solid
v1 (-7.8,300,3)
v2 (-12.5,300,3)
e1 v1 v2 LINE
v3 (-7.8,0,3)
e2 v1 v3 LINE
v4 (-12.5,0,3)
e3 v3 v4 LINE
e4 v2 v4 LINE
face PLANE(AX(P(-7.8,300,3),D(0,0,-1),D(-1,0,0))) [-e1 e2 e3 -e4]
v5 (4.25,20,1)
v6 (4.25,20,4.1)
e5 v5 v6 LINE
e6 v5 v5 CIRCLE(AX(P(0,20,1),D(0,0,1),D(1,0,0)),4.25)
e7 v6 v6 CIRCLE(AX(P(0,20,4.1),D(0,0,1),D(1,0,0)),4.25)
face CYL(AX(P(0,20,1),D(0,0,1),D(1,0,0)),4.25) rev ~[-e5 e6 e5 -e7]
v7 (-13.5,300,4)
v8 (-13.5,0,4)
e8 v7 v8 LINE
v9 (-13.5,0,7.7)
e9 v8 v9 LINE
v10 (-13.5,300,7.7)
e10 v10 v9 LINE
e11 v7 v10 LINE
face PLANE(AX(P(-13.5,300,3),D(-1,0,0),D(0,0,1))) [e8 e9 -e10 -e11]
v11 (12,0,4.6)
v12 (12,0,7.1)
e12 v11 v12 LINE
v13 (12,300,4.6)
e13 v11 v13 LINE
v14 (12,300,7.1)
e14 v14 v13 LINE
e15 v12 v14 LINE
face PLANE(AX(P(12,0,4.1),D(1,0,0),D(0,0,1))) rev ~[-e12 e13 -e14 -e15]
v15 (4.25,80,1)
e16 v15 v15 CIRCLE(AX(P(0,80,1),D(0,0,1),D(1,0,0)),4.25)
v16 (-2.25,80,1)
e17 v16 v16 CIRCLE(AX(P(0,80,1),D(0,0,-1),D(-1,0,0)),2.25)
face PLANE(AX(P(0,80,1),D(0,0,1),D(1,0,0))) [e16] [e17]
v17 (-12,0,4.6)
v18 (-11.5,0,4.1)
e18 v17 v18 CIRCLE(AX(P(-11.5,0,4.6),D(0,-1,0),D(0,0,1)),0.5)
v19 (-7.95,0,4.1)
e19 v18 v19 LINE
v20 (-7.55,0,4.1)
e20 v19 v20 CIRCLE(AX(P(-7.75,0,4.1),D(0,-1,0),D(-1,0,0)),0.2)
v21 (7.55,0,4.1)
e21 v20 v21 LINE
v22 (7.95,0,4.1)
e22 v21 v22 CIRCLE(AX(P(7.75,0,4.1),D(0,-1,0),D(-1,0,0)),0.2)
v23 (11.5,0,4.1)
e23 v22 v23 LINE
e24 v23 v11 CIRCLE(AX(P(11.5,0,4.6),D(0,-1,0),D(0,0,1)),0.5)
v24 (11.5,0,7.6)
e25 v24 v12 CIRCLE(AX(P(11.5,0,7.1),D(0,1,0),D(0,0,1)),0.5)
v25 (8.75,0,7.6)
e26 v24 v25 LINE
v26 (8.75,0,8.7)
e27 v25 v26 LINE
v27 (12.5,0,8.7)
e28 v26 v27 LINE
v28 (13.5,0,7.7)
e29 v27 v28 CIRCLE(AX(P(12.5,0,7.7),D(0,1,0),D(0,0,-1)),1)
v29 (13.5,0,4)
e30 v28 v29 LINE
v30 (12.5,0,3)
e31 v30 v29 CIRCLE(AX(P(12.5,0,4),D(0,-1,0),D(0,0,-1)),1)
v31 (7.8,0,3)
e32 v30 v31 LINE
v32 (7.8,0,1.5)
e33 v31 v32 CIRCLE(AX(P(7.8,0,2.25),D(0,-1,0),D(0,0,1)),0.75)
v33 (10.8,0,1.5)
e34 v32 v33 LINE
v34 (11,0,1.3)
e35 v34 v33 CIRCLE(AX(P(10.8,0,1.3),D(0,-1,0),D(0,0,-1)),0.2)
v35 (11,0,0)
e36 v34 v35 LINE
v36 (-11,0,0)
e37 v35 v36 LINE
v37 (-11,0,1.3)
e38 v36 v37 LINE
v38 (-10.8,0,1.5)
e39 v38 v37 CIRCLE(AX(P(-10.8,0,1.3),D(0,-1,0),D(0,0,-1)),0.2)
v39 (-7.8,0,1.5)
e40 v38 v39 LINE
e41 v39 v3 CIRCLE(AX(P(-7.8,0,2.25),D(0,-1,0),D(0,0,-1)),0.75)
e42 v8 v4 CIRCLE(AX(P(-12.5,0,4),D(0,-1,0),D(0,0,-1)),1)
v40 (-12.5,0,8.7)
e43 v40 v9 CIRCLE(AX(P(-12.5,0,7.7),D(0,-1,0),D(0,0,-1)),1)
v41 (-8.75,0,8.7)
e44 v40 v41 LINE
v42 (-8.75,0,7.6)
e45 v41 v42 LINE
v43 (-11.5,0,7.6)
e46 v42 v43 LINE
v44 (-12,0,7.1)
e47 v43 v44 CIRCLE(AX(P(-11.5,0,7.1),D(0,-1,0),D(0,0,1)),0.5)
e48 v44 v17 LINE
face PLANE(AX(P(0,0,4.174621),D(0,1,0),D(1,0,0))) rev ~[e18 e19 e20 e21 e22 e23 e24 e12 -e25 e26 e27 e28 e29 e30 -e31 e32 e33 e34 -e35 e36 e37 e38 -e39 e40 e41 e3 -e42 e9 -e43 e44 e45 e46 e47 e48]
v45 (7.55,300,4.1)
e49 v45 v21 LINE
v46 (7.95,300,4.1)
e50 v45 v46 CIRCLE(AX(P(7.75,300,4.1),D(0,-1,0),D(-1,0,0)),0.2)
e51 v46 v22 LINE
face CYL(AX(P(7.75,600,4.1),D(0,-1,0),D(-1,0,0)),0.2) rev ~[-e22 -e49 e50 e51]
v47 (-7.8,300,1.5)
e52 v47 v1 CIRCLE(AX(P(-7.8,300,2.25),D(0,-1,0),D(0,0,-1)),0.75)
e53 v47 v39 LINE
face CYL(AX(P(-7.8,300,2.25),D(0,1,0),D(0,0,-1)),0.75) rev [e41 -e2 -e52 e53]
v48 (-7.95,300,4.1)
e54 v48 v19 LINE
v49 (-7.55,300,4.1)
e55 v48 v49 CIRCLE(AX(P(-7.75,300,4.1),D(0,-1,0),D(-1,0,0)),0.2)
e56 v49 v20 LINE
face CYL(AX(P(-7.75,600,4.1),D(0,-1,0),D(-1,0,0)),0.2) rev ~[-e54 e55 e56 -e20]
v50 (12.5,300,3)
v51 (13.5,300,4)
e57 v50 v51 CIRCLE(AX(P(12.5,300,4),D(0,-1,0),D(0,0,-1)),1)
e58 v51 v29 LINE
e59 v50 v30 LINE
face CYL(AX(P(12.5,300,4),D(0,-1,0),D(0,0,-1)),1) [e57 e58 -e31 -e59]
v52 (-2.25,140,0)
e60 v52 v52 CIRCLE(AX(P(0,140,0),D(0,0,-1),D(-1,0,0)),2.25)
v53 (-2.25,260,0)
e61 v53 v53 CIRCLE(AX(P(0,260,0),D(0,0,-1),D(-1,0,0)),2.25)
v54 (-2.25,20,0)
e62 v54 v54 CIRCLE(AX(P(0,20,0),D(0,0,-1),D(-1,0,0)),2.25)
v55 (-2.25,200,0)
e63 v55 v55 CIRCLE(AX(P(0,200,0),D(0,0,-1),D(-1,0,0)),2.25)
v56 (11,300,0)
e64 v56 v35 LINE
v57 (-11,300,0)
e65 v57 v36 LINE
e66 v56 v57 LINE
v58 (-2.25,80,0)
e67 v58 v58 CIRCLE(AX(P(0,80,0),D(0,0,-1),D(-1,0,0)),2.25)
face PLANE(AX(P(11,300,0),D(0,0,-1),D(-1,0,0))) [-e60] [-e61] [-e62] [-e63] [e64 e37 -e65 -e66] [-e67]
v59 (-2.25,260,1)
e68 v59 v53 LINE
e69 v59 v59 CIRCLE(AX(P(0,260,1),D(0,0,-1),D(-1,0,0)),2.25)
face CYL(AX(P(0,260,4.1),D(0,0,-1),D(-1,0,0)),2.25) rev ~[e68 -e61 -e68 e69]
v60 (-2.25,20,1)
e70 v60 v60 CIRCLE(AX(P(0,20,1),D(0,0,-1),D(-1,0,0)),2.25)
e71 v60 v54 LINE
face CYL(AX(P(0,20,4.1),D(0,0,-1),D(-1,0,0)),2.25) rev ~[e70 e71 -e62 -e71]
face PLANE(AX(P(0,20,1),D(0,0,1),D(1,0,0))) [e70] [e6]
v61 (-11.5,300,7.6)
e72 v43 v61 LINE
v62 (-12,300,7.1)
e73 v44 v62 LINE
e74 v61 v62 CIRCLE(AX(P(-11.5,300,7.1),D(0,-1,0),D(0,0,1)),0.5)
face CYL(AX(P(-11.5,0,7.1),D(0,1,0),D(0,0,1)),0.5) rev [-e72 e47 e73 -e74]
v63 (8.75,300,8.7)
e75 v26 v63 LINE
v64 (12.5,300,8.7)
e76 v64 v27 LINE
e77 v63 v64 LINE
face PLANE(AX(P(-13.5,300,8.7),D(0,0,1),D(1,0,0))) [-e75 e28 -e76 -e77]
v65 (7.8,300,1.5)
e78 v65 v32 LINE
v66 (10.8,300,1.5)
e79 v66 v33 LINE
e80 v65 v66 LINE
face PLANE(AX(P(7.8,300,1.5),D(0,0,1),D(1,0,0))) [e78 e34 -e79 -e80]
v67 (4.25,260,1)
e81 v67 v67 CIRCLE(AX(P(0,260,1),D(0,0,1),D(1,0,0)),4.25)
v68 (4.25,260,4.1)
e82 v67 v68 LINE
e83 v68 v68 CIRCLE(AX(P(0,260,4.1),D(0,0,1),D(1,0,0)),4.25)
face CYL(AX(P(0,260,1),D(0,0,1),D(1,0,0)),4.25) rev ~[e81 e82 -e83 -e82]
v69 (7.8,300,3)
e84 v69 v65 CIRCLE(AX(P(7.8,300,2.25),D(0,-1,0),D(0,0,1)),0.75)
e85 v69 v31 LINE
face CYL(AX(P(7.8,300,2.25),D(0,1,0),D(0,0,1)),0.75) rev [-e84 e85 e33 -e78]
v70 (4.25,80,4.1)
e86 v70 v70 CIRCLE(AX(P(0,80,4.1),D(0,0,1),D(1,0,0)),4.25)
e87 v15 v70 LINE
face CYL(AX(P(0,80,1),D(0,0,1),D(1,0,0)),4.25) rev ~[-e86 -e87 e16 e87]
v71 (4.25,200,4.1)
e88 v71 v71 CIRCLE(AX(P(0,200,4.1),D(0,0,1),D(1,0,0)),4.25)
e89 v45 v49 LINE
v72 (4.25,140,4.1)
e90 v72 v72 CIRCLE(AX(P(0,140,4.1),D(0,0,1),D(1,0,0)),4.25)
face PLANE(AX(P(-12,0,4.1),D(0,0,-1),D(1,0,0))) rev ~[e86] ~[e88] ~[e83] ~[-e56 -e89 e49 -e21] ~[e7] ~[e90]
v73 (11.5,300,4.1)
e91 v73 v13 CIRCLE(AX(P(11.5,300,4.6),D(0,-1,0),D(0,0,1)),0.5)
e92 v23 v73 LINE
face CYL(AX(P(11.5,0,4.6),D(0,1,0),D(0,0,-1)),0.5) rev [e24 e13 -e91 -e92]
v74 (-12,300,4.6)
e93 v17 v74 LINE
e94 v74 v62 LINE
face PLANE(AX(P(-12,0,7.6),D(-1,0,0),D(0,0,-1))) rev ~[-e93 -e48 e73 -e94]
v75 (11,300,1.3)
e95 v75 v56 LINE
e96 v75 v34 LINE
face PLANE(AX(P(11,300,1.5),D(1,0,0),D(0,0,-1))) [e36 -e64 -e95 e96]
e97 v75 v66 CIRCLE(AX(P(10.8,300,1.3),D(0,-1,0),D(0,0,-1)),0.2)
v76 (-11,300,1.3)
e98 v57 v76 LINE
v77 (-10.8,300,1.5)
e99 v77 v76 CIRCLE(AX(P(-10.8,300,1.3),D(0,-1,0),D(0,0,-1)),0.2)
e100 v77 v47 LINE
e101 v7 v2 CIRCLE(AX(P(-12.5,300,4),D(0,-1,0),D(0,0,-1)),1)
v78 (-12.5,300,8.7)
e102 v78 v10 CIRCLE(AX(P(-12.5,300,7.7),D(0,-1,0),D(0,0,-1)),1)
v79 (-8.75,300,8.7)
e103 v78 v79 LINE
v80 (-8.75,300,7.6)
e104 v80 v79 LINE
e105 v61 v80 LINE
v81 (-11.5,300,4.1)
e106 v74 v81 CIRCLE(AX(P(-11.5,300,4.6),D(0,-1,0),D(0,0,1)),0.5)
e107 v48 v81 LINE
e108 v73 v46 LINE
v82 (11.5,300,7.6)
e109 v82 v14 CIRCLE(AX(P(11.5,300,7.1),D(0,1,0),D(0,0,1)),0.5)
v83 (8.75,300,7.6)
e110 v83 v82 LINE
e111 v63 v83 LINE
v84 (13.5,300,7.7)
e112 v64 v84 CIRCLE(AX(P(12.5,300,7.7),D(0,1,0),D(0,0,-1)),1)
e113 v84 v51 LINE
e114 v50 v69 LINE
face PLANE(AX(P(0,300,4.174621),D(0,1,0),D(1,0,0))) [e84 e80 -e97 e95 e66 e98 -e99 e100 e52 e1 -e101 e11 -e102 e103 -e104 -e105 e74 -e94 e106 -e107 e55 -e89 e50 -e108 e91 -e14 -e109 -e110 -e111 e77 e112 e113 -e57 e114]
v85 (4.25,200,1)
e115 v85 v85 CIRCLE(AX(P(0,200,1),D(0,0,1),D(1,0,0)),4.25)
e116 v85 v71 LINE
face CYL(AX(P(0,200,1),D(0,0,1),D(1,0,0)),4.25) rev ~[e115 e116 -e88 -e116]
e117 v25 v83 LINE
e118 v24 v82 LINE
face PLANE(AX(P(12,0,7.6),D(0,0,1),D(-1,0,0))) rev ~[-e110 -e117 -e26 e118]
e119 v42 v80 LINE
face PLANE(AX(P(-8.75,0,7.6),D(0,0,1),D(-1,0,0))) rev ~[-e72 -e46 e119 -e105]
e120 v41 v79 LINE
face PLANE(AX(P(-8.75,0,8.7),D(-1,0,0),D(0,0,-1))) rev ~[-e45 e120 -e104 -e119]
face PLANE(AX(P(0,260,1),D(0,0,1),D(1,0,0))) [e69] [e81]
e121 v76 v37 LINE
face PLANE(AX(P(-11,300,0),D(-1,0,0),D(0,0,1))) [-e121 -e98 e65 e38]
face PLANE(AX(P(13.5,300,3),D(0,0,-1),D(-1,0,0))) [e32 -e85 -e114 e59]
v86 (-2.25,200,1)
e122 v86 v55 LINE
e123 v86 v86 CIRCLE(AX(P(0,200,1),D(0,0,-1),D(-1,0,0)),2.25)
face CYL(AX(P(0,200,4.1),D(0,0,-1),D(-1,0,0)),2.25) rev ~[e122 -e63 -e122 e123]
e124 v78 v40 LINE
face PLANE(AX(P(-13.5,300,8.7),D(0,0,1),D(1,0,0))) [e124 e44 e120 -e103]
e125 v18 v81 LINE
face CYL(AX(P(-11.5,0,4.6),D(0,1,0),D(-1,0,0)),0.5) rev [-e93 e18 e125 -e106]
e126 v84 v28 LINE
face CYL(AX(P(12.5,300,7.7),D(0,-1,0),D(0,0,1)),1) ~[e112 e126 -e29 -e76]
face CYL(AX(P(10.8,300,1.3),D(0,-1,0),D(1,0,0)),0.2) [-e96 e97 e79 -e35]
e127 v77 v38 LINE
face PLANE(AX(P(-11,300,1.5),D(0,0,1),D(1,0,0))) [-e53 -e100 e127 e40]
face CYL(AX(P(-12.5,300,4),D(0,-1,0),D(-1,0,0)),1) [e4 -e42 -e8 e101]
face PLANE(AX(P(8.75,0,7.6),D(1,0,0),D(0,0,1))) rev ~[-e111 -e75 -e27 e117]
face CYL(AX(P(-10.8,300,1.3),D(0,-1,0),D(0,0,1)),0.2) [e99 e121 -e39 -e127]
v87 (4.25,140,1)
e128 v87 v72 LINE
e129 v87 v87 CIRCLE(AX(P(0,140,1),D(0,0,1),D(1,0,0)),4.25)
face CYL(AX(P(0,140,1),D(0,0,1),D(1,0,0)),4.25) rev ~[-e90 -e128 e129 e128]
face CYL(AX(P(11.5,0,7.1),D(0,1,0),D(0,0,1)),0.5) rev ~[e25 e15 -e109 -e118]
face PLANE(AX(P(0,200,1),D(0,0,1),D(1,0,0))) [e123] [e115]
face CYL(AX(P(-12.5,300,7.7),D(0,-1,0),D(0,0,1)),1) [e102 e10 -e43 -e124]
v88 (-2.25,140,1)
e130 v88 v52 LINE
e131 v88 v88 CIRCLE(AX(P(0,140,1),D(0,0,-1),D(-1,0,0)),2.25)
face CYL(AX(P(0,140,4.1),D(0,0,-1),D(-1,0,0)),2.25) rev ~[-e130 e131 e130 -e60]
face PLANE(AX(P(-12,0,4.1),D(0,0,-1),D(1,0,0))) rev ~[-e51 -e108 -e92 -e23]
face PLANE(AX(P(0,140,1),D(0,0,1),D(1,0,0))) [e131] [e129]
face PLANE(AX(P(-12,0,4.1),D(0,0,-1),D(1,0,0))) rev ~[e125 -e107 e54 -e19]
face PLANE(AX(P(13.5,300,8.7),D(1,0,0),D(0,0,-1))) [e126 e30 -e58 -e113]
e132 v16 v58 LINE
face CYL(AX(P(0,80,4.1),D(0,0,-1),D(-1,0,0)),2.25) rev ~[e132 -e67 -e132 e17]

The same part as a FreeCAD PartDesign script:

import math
import FreeCAD as App
import Part
import Sketcher
from FreeCAD import Vector


def edges_at(feature, points):
    """Names of the edges that pass closest to the given points."""
    edges = feature.Shape.Edges
    near = lambda p: min(range(len(edges)), key=lambda i: edges[i].distToShape(Part.Vertex(*p))[0])
    return sorted({f"Edge{near(p) + 1}" for p in points})


def add_polygon(sketch, points):
    """Adds a closed chain of lines whose ends are joined by coincident constraints."""
    first, n = sketch.GeometryCount, len(points)
    for a, b in zip(points, points[1:] + points[:1]):
        sketch.addGeometry(Part.LineSegment(App.Vector(*a, 0), App.Vector(*b, 0)), False)
    for i in range(n):
        sketch.addConstraint(Sketcher.Constraint("Coincident", first + i, 2, first + (i + 1) % n, 1))

doc = App.newDocument("Part")
params = doc.addObject("Spreadsheet::Sheet", "Params")
for row, (alias, value) in enumerate([
    ("sketch1_width", "27 mm"),
    ("sketch1_width2", "22 mm"),
    ("sketch1_radius", "0.75 mm"),
    ("sketch1_width3", "5.7 mm"),
    ("sketch1_height", "1.5 mm"),
    ("pad1_length", "300 mm"),
    ("sketch2_width", "24 mm"),
    ("sketch2_width2", "17.5 mm"),
    ("sketch2_height", "1.1 mm"),
    ("sketch2_height2", "3.5 mm"),
    ("sketch3_diameter", "0.4 mm"),
    ("hole_diameter", "0.4 mm"),
    ("hole_depth", "300 mm"),
    ("sketch4_diameter", "4.5 mm"),
    ("hole2_diameter", "4.5 mm"),
    ("hole2_depth", "4.1 mm"),
    ("hole2_cbore_diameter", "8.5 mm"),
    ("hole2_cbore_depth", "3.1 mm"),
    ("fillet_radius", "0.2 mm"),
    ("fillet2_radius", "0.5 mm"),
    ("fillet3_radius", "1 mm"),
], start=1):
    params.set(f"A{row}", alias)
    params.set(f"B{row}", "=" + value)
    params.setAlias(f"B{row}", alias)

body = doc.addObject("PartDesign::Body", "Body")

# Sketch on XZ plane
sketch1 = body.newObject("Sketcher::SketchObject", "Sketch")
sketch1.AttachmentSupport = (doc.getObject("XZ_Plane"), [""])
sketch1.MapMode = "FlatFace"
sketch1.AttachmentOffset = App.Placement(Vector(0, 0, -300), App.Rotation())
sketch1.addGeometry([
    Part.LineSegment(Vector(-13.5, 3, 0), Vector(-13.5, 8.7, 0)),  # 0
    Part.LineSegment(Vector(-13.5, 8.7, 0), Vector(13.5, 8.7, 0)),  # 1
    Part.LineSegment(Vector(13.5, 8.7, 0), Vector(13.5, 3, 0)),  # 2
    Part.LineSegment(Vector(13.5, 3, 0), Vector(7.8, 3, 0)),  # 3
    Part.ArcOfCircle(Part.Circle(Vector(7.8, 2.2, 0), Vector(0, 0, 1), 0.8), math.radians(90), math.radians(270)),  # 4
    Part.LineSegment(Vector(7.8, 1.5, 0), Vector(11, 1.5, 0)),  # 5
    Part.LineSegment(Vector(11, 1.5, 0), Vector(11, 0, 0)),  # 6
    Part.LineSegment(Vector(11, 0, 0), Vector(-11, 0, 0)),  # 7
    Part.LineSegment(Vector(-11, 0, 0), Vector(-11, 1.5, 0)),  # 8
    Part.LineSegment(Vector(-11, 1.5, 0), Vector(-7.8, 1.5, 0)),  # 9
    Part.ArcOfCircle(Part.Circle(Vector(-7.8, 2.2, 0), Vector(0, 0, 1), 0.8), math.radians(-90), math.radians(90)),  # 10
    Part.LineSegment(Vector(-7.8, 3, 0), Vector(-13.5, 3, 0)),  # 11
], False)
sketch1.addConstraint([
    Sketcher.Constraint("Coincident", 0, 2, 1, 1),
    Sketcher.Constraint("Coincident", 1, 2, 2, 1),
    Sketcher.Constraint("Coincident", 2, 2, 3, 1),
    Sketcher.Constraint("Tangent", 3, 2, 4, 1),
    Sketcher.Constraint("Tangent", 4, 2, 5, 1),
    Sketcher.Constraint("Coincident", 5, 2, 6, 1),
    Sketcher.Constraint("Coincident", 6, 2, 7, 1),
    Sketcher.Constraint("Coincident", 7, 2, 8, 1),
    Sketcher.Constraint("Coincident", 8, 2, 9, 1),
    Sketcher.Constraint("Tangent", 9, 2, 10, 1),
    Sketcher.Constraint("Tangent", 10, 2, 11, 1),
    Sketcher.Constraint("Coincident", 11, 2, 0, 1),
    Sketcher.Constraint("Vertical", 0),
    Sketcher.Constraint("Horizontal", 1),
    Sketcher.Constraint("Vertical", 2),
    Sketcher.Constraint("Horizontal", 3),
    Sketcher.Constraint("Horizontal", 5),
    Sketcher.Constraint("Vertical", 6),
    Sketcher.Constraint("Horizontal", 7),
    Sketcher.Constraint("Vertical", 8),
    Sketcher.Constraint("Horizontal", 9),
    Sketcher.Constraint("Horizontal", 11),
    Sketcher.Constraint("Equal", 4, 10),
    Sketcher.Constraint("Symmetric", 6, 2, 7, 2, -1, 1),
    Sketcher.Constraint("Symmetric", 4, 3, 10, 3, -2),
    Sketcher.Constraint("Equal", 3, 11),
    Sketcher.Constraint("Equal", 11, 0),
    Sketcher.Constraint("DistanceX", 1, 1, 1, 2, 27.0),
    Sketcher.Constraint("DistanceX", 7, 2, 7, 1, 22.0),
    Sketcher.Constraint("Radius", 4, 0.75),
    Sketcher.Constraint("DistanceX", 3, 2, 3, 1, 5.7),
    Sketcher.Constraint("DistanceY", 6, 2, 6, 1, 1.5),
])
sketch1.setExpression("Constraints[27]", "Params.sketch1_width")
sketch1.setExpression("Constraints[28]", "Params.sketch1_width2")
sketch1.setExpression("Constraints[29]", "Params.sketch1_radius")
sketch1.setExpression("Constraints[30]", "Params.sketch1_width3")
sketch1.setExpression("Constraints[31]", "Params.sketch1_height")
pad1 = body.newObject("PartDesign::Pad", "Pad")
pad1.Profile = sketch1
pad1.setExpression("Length", "Params.pad1_length")

# Sketch on XZ plane
sketch2 = body.newObject("Sketcher::SketchObject", "Sketch001")
sketch2.AttachmentSupport = (doc.getObject("XZ_Plane"), [""])
sketch2.MapMode = "FlatFace"
add_polygon(sketch2, [(8.8, 8.7), (-8.8, 8.7), (-8.8, 7.6), (-12, 7.6), (-12, 4.1), (12, 4.1), (12, 7.6), (8.8, 7.6)])  # lines 0-7
sketch2.addConstraint([
    Sketcher.Constraint("Horizontal", 0),
    Sketcher.Constraint("Vertical", 1),
    Sketcher.Constraint("Horizontal", 2),
    Sketcher.Constraint("Vertical", 3),
    Sketcher.Constraint("Horizontal", 4),
    Sketcher.Constraint("Vertical", 5),
    Sketcher.Constraint("Horizontal", 6),
    Sketcher.Constraint("Vertical", 7),
    Sketcher.Constraint("Symmetric", 2, 2, 5, 2, -2),
    Sketcher.Constraint("Equal", 2, 6),
    Sketcher.Constraint("DistanceX", 4, 1, 4, 2, 24.0),
    Sketcher.Constraint("DistanceX", 0, 2, 0, 1, 17.5),
    Sketcher.Constraint("DistanceY", 1, 2, 1, 1, 1.1),
    Sketcher.Constraint("DistanceY", 3, 2, 3, 1, 3.5),
    Sketcher.Constraint("DistanceY", -1, 1, 0, 2, 8.7),
])
sketch2.setExpression("Constraints[18]", "Params.sketch2_width")
sketch2.setExpression("Constraints[19]", "Params.sketch2_width2")
sketch2.setExpression("Constraints[20]", "Params.sketch2_height")
sketch2.setExpression("Constraints[21]", "Params.sketch2_height2")
pocket1 = body.newObject("PartDesign::Pocket", "Pocket")
pocket1.Profile = sketch2
pocket1.Type = "ThroughAll"

# Sketch on XZ plane
sketch3 = body.newObject("Sketcher::SketchObject", "Sketch002")
sketch3.AttachmentSupport = (doc.getObject("XZ_Plane"), [""])
sketch3.MapMode = "FlatFace"
sketch3.AttachmentOffset = App.Placement(Vector(0, 0, -300), App.Rotation())
sketch3.addGeometry([
    Part.Circle(Vector(-7.75, 4.1, 0), Vector(0, 0, 1), 0.2),
    Part.Circle(Vector(7.75, 4.1, 0), Vector(0, 0, 1), 0.2),
], False)
sketch3.addConstraint([
    Sketcher.Constraint("Equal", 0, 1),
    Sketcher.Constraint("Symmetric", 0, 3, 1, 3, -2),
    Sketcher.Constraint("Diameter", 0, 0.4),
    Sketcher.Constraint("DistanceY", -1, 1, 0, 3, 4.1),
    Sketcher.Constraint("DistanceX", 0, 3, 1, 3, 15.5),
])
sketch3.setExpression("Constraints[2]", "Params.sketch3_diameter")
doc.recompute()
hole = body.newObject("PartDesign::Hole", "Hole")
hole.Profile = sketch3
hole.ThreadType = "None"
hole.setExpression("Diameter", "Params.hole_diameter")
hole.DepthType = "Dimension"
hole.setExpression("Depth", "Params.hole_depth")
hole.DrillPoint = "Flat"
hole.Reversed = True

# Sketch on XY plane
sketch4 = body.newObject("Sketcher::SketchObject", "Sketch003")
sketch4.AttachmentSupport = (doc.getObject("XY_Plane"), [""])
sketch4.MapMode = "FlatFace"
sketch4.AttachmentOffset = App.Placement(Vector(0, 0, 4.1), App.Rotation())
sketch4.addGeometry([
    Part.Circle(Vector(0, 260, 0), Vector(0, 0, 1), 2.2),  # 0
    Part.Circle(Vector(0, 200, 0), Vector(0, 0, 1), 2.2),  # 1
    Part.Circle(Vector(0, 140, 0), Vector(0, 0, 1), 2.2),  # 2
    Part.Circle(Vector(0, 80, 0), Vector(0, 0, 1), 2.2),  # 3
    Part.Circle(Vector(0, 20, 0), Vector(0, 0, 1), 2.2),  # 4
], False)
sketch4.addConstraint([
    Sketcher.Constraint("Equal", 0, 1),
    Sketcher.Constraint("Equal", 1, 2),
    Sketcher.Constraint("Equal", 2, 3),
    Sketcher.Constraint("Equal", 3, 4),
    Sketcher.Constraint("PointOnObject", 0, 3, -2),
    Sketcher.Constraint("PointOnObject", 1, 3, -2),
    Sketcher.Constraint("PointOnObject", 2, 3, -2),
    Sketcher.Constraint("PointOnObject", 3, 3, -2),
    Sketcher.Constraint("PointOnObject", 4, 3, -2),
    Sketcher.Constraint("Diameter", 0, 4.5),
    Sketcher.Constraint("DistanceY", -1, 1, 0, 3, 260.0),
    Sketcher.Constraint("DistanceY", -1, 1, 1, 3, 200.0),
    Sketcher.Constraint("DistanceY", -1, 1, 2, 3, 140.0),
    Sketcher.Constraint("DistanceY", -1, 1, 3, 3, 80.0),
    Sketcher.Constraint("DistanceY", -1, 1, 4, 3, 20.0),
])
sketch4.setExpression("Constraints[9]", "Params.sketch4_diameter")
doc.recompute()
hole2 = body.newObject("PartDesign::Hole", "Hole001")
hole2.Profile = sketch4
hole2.ThreadType = "None"
hole2.setExpression("Diameter", "Params.hole2_diameter")
hole2.DepthType = "Dimension"
hole2.setExpression("Depth", "Params.hole2_depth")
hole2.DrillPoint = "Flat"
hole2.HoleCutType = "Counterbore"
hole2.setExpression("HoleCutDiameter", "Params.hole2_cbore_diameter")
hole2.setExpression("HoleCutDepth", "Params.hole2_cbore_depth")
doc.recompute()

fillet = body.newObject("PartDesign::Fillet", "Fillet")
fillet.Base = (hole2, edges_at(hole2, [(-11, 150, 1.5), (11, 150, 1.5)]))
fillet.setExpression("Radius", "Params.fillet_radius")
doc.recompute()

fillet2 = body.newObject("PartDesign::Fillet", "Fillet001")
fillet2.Base = (fillet, edges_at(fillet, [
    (12, 150, 7.6),
    (12, 150, 4.1),
    (-12, 150, 4.1),
    (-12, 150, 7.6),
]))
fillet2.setExpression("Radius", "Params.fillet2_radius")
doc.recompute()

fillet3 = body.newObject("PartDesign::Fillet", "Fillet002")
fillet3.Base = (fillet2, edges_at(fillet2, [
    (13.5, 150, 3),
    (13.5, 150, 8.7),
    (-13.5, 150, 8.7),
    (-13.5, 150, 3),
]))
fillet3.setExpression("Radius", "Params.fillet3_radius")

doc.recompute()
